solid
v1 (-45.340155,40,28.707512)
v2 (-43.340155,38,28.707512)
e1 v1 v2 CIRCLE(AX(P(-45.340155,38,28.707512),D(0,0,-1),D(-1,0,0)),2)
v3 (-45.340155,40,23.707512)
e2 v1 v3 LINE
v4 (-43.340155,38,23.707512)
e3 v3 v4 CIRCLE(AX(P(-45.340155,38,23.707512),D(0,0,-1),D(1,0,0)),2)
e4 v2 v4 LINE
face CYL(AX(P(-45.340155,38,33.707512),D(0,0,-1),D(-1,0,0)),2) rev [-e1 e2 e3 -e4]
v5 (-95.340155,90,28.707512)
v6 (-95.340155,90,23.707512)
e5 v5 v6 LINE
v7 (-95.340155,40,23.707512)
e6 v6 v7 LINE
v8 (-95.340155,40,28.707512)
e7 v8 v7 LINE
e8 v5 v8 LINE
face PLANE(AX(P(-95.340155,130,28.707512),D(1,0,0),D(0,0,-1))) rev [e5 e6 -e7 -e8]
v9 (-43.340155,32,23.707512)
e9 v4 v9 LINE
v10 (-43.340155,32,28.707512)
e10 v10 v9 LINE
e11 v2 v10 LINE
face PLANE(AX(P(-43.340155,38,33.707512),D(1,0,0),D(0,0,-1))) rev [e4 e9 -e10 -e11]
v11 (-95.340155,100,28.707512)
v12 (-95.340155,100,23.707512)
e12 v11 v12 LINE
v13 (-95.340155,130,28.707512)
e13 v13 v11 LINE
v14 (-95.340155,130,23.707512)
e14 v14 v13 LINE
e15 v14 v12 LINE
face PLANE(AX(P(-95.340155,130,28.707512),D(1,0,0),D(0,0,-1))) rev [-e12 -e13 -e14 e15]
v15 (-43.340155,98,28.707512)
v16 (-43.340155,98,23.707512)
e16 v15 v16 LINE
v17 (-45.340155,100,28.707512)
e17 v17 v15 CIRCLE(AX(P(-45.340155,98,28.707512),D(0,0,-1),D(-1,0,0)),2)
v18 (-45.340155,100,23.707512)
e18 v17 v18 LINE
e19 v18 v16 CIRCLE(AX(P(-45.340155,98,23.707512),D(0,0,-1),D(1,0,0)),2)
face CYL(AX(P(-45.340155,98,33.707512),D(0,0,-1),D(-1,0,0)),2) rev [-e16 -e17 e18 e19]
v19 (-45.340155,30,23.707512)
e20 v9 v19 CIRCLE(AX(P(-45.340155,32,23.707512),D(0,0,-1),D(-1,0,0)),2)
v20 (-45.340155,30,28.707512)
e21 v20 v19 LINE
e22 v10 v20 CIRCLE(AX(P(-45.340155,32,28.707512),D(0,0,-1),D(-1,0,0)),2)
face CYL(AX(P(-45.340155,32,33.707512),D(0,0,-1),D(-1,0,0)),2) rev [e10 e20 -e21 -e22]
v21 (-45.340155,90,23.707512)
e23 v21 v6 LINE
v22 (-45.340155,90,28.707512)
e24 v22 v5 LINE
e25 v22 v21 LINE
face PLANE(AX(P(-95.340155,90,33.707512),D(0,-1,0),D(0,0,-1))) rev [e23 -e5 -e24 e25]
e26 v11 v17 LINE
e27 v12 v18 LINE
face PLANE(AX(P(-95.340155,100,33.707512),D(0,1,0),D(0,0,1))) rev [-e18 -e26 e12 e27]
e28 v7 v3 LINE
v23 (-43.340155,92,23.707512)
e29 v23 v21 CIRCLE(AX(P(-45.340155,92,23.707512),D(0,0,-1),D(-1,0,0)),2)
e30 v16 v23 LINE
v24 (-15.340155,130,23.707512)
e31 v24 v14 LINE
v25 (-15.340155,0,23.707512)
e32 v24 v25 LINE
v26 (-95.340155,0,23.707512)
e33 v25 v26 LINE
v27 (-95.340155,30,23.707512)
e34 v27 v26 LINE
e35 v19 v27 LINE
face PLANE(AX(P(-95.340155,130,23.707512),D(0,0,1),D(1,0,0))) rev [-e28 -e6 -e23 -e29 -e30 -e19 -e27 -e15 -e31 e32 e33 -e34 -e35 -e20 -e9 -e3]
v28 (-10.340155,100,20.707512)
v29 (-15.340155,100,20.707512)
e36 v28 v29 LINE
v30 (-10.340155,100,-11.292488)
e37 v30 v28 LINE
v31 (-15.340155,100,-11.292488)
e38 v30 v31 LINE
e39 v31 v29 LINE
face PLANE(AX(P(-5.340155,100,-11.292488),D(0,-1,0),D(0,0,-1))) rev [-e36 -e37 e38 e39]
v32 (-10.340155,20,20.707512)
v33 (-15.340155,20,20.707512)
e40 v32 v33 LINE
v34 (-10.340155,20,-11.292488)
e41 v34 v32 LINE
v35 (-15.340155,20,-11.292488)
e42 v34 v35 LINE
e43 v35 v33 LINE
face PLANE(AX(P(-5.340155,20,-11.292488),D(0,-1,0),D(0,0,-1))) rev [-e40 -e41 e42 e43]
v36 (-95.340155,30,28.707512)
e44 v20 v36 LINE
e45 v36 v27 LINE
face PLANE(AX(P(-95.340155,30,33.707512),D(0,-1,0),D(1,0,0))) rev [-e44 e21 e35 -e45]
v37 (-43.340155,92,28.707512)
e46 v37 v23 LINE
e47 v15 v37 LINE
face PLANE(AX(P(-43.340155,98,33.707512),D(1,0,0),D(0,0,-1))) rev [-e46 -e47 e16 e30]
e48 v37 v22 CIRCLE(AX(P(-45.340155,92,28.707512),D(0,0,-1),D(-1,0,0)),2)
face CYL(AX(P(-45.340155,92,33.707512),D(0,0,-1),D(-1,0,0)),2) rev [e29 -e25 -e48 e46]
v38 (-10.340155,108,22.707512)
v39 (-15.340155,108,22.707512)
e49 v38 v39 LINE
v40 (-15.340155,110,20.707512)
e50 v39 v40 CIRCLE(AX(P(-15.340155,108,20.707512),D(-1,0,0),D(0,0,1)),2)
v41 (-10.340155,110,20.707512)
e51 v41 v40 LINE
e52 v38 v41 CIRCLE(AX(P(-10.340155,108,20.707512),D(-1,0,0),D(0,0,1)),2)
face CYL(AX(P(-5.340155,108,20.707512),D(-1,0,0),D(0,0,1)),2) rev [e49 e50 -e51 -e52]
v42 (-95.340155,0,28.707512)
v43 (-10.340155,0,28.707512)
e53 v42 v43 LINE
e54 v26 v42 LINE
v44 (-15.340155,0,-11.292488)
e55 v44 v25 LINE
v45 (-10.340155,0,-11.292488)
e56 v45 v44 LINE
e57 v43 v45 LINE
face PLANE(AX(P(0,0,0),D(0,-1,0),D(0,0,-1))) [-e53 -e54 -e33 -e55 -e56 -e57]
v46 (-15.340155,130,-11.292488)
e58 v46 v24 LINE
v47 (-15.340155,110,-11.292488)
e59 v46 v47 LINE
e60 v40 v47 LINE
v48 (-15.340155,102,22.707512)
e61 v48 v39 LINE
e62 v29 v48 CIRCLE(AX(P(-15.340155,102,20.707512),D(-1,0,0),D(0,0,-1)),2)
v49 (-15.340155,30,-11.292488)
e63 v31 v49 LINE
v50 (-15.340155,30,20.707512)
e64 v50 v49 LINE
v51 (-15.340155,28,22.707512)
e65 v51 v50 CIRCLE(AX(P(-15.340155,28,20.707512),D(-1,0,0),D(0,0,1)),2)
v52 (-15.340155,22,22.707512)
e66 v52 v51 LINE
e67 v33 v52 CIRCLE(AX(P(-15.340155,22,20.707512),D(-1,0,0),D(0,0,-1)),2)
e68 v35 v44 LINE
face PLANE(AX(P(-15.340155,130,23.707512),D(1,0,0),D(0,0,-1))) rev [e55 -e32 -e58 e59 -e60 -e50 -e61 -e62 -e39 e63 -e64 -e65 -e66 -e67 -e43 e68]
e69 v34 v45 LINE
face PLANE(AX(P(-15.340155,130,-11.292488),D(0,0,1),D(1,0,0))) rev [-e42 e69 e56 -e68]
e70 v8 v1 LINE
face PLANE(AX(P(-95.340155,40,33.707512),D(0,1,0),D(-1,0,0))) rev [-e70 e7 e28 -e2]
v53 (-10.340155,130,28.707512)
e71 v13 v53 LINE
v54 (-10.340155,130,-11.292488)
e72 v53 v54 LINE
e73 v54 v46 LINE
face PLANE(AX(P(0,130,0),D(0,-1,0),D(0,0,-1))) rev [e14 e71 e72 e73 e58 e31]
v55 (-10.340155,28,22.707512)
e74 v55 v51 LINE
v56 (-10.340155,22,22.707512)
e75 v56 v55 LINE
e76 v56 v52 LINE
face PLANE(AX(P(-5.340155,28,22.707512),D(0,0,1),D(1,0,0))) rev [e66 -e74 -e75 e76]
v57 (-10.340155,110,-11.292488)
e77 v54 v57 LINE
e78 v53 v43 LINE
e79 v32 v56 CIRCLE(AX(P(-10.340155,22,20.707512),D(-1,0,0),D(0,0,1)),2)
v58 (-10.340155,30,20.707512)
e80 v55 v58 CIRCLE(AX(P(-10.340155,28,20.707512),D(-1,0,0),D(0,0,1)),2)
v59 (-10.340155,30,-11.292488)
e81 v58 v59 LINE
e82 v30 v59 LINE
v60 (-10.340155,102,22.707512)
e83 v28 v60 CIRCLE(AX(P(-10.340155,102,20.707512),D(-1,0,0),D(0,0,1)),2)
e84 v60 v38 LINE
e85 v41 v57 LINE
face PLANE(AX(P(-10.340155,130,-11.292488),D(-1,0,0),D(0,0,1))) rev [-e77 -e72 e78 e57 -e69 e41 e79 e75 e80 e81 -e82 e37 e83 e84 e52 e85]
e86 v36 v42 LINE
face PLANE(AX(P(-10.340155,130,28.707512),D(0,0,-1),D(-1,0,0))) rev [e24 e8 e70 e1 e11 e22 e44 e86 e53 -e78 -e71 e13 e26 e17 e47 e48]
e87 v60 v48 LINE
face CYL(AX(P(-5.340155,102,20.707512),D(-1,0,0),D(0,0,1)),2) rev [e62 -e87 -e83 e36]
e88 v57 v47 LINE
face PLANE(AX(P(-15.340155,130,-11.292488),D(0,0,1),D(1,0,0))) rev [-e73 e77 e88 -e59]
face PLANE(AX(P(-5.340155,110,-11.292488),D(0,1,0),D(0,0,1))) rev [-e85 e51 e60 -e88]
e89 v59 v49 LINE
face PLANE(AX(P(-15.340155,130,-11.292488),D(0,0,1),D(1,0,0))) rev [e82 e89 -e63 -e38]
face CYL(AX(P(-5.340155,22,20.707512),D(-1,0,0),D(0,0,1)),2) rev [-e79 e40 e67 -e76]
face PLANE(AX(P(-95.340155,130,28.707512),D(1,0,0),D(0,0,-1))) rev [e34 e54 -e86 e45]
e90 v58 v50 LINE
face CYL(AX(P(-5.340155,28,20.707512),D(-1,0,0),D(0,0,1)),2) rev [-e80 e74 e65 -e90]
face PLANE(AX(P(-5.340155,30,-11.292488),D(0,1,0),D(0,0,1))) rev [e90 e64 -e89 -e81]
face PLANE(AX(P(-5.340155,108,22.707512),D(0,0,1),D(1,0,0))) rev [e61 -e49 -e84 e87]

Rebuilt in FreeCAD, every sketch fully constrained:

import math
import FreeCAD as App
import Part
import Sketcher
from FreeCAD import Vector
Q = App.Units.Quantity

doc = App.newDocument("Part")
body = doc.addObject("PartDesign::Body", "Body")

# Sketch on XZ plane
sketch1 = body.newObject("Sketcher::SketchObject", "Sketch")
sketch1.AttachmentSupport = (doc.getObject("XZ_Plane"), [""])
sketch1.MapMode = "FlatFace"
sketch1.addGeometry([
    Part.LineSegment(Vector(-15.340155, 23.707512, 0), Vector(-95.340155, 23.707512, 0)),  # 0
    Part.LineSegment(Vector(-95.340155, 23.707512, 0), Vector(-95.340155, 28.707512, 0)),  # 1
    Part.LineSegment(Vector(-95.340155, 28.707512, 0), Vector(-10.340155, 28.707512, 0)),  # 2
    Part.LineSegment(Vector(-10.340155, 28.707512, 0), Vector(-10.340155, -11.292488, 0)),  # 3
    Part.LineSegment(Vector(-10.340155, -11.292488, 0), Vector(-15.340155, -11.292488, 0)),  # 4
    Part.LineSegment(Vector(-15.340155, -11.292488, 0), Vector(-15.340155, 23.707512, 0)),  # 5
], False)
sketch1.addConstraint([
    Sketcher.Constraint("Coincident", 0, 2, 1, 1),
    Sketcher.Constraint("Coincident", 1, 2, 2, 1),
    Sketcher.Constraint("Coincident", 2, 2, 3, 1),
    Sketcher.Constraint("Coincident", 3, 2, 4, 1),
    Sketcher.Constraint("Coincident", 4, 2, 5, 1),
    Sketcher.Constraint("Coincident", 5, 2, 0, 1),
    Sketcher.Constraint("Horizontal", 0),
    Sketcher.Constraint("Vertical", 1),
    Sketcher.Constraint("Horizontal", 2),
    Sketcher.Constraint("Vertical", 3),
    Sketcher.Constraint("Horizontal", 4),
    Sketcher.Constraint("Vertical", 5),
    Sketcher.Constraint("Equal", 4, 1),
    Sketcher.Constraint("DistanceX", 0, 2, 0, 1, Q("80 mm")),
    Sketcher.Constraint("DistanceX", 2, 1, 2, 2, Q("85 mm")),
    Sketcher.Constraint("DistanceY", 3, 2, 3, 1, Q("40 mm")),
    Sketcher.Constraint("DistanceX", 0, 2, -1, 1, Q("95.340155 mm")),
    Sketcher.Constraint("DistanceY", -1, 1, 0, 2, Q("23.707512 mm")),
])
pad1 = body.newObject("PartDesign::Pad", "Pad")
pad1.Profile = sketch1
pad1.Length = 130
pad1.Reversed = True

# Sketch on YZ plane
sketch2 = body.newObject("Sketcher::SketchObject", "Sketch001")
sketch2.AttachmentSupport = (doc.getObject("YZ_Plane"), [""])
sketch2.MapMode = "FlatFace"
sketch2.AttachmentOffset = App.Placement(Vector(0, 0, -15.340155), App.Rotation())
sketch2.addGeometry([
    Part.LineSegment(Vector(110, 20.707512, 0), Vector(110, -11.292488, 0)),  # 0
    Part.LineSegment(Vector(110, -11.292488, 0), Vector(100, -11.292488, 0)),  # 1
    Part.LineSegment(Vector(100, -11.292488, 0), Vector(100, 20.707512, 0)),  # 2
    Part.ArcOfCircle(Part.Circle(Vector(102, 20.707512, 0), Vector(0, 0, 1), 2), math.radians(90), math.radians(180)),  # 3
    Part.LineSegment(Vector(102, 22.707512, 0), Vector(108, 22.707512, 0)),  # 4
    Part.ArcOfCircle(Part.Circle(Vector(108, 20.707512, 0), Vector(0, 0, 1), 2), math.radians(0), math.radians(90)),  # 5
    Part.LineSegment(Vector(30, 20.707512, 0), Vector(30, -11.292488, 0)),  # 6
    Part.LineSegment(Vector(30, -11.292488, 0), Vector(20, -11.292488, 0)),  # 7
    Part.LineSegment(Vector(20, -11.292488, 0), Vector(20, 20.707512, 0)),  # 8
    Part.ArcOfCircle(Part.Circle(Vector(22, 20.707512, 0), Vector(0, 0, 1), 2), math.radians(90), math.radians(180)),  # 9
    Part.LineSegment(Vector(22, 22.707512, 0), Vector(28, 22.707512, 0)),  # 10
    Part.ArcOfCircle(Part.Circle(Vector(28, 20.707512, 0), Vector(0, 0, 1), 2), math.radians(0), math.radians(90)),  # 11
], False)
sketch2.addConstraint([
    Sketcher.Constraint("Coincident", 0, 2, 1, 1),
    Sketcher.Constraint("Coincident", 1, 2, 2, 1),
    Sketcher.Constraint("Tangent", 2, 2, 3, 2),
    Sketcher.Constraint("Tangent", 3, 1, 4, 1),
    Sketcher.Constraint("Tangent", 4, 2, 5, 2),
    Sketcher.Constraint("Tangent", 5, 1, 0, 1),
    Sketcher.Constraint("Coincident", 6, 2, 7, 1),
    Sketcher.Constraint("Coincident", 7, 2, 8, 1),
    Sketcher.Constraint("Tangent", 8, 2, 9, 2),
    Sketcher.Constraint("Tangent", 9, 1, 10, 1),
    Sketcher.Constraint("Tangent", 10, 2, 11, 2),
    Sketcher.Constraint("Tangent", 11, 1, 6, 1),
    Sketcher.Constraint("Vertical", 0),
    Sketcher.Constraint("Horizontal", 1),
    Sketcher.Constraint("Vertical", 2),
    Sketcher.Constraint("Horizontal", 4),
    Sketcher.Constraint("Vertical", 6),
    Sketcher.Constraint("Horizontal", 7),
    Sketcher.Constraint("Vertical", 8),
    Sketcher.Constraint("Horizontal", 10),
    Sketcher.Constraint("Equal", 3, 5),
    Sketcher.Constraint("Equal", 5, 9),
    Sketcher.Constraint("Equal", 9, 11),
    Sketcher.Constraint("Horizontal", 5, 3, 9, 3),
    Sketcher.Constraint("Horizontal", 1, 2, 6, 2),
    Sketcher.Constraint("Equal", 1, 7),
    Sketcher.Constraint("Radius", 3, Q("2 mm")),
    Sketcher.Constraint("DistanceX", 1, 2, 1, 1, Q("10 mm")),
    Sketcher.Constraint("DistanceY", 0, 2, 0, 1, Q("32 mm")),
    Sketcher.Constraint("DistanceX", -1, 1, 3, 3, Q("102 mm")),
    Sketcher.Constraint("DistanceX", -1, 1, 9, 3, Q("22 mm")),
    Sketcher.Constraint("DistanceY", -1, 1, 3, 3, Q("20.707512 mm")),
])
pocket1 = body.newObject("PartDesign::Pocket", "Pocket")
pocket1.Profile = sketch2
pocket1.Length = 10
pocket1.Reversed = True

# Sketch on XY plane
sketch3 = body.newObject("Sketcher::SketchObject", "Sketch002")
sketch3.AttachmentSupport = (doc.getObject("XY_Plane"), [""])
sketch3.MapMode = "FlatFace"
sketch3.AttachmentOffset = App.Placement(Vector(0, 0, 23.707512), App.Rotation())
sketch3.addGeometry([
    Part.LineSegment(Vector(-95.340155, 100, 0), Vector(-45.340155, 100, 0)),  # 0
    Part.ArcOfCircle(Part.Circle(Vector(-45.340155, 98, 0), Vector(0, 0, 1), 2), math.radians(0), math.radians(90)),  # 1
    Part.LineSegment(Vector(-43.340155, 98, 0), Vector(-43.340155, 92, 0)),  # 2
    Part.ArcOfCircle(Part.Circle(Vector(-45.340155, 92, 0), Vector(0, 0, 1), 2), math.radians(-90), math.radians(0)),  # 3
    Part.LineSegment(Vector(-45.340155, 90, 0), Vector(-95.340155, 90, 0)),  # 4
    Part.LineSegment(Vector(-95.340155, 90, 0), Vector(-95.340155, 100, 0)),  # 5
    Part.LineSegment(Vector(-95.340155, 40, 0), Vector(-45.340155, 40, 0)),  # 6
    Part.ArcOfCircle(Part.Circle(Vector(-45.340155, 38, 0), Vector(0, 0, 1), 2), math.radians(0), math.radians(90)),  # 7
    Part.LineSegment(Vector(-43.340155, 38, 0), Vector(-43.340155, 32, 0)),  # 8
    Part.ArcOfCircle(Part.Circle(Vector(-45.340155, 32, 0), Vector(0, 0, 1), 2), math.radians(-90), math.radians(0)),  # 9
    Part.LineSegment(Vector(-45.340155, 30, 0), Vector(-95.340155, 30, 0)),  # 10
    Part.LineSegment(Vector(-95.340155, 30, 0), Vector(-95.340155, 40, 0)),  # 11
], False)
sketch3.addConstraint([
    Sketcher.Constraint("Tangent", 0, 2, 1, 2),
    Sketcher.Constraint("Tangent", 1, 1, 2, 1),
    Sketcher.Constraint("Tangent", 2, 2, 3, 2),
    Sketcher.Constraint("Tangent", 3, 1, 4, 1),
    Sketcher.Constraint("Coincident", 4, 2, 5, 1),
    Sketcher.Constraint("Coincident", 5, 2, 0, 1),
    Sketcher.Constraint("Tangent", 6, 2, 7, 2),
    Sketcher.Constraint("Tangent", 7, 1, 8, 1),
    Sketcher.Constraint("Tangent", 8, 2, 9, 2),
    Sketcher.Constraint("Tangent", 9, 1, 10, 1),
    Sketcher.Constraint("Coincident", 10, 2, 11, 1),
    Sketcher.Constraint("Coincident", 11, 2, 6, 1),
    Sketcher.Constraint("Horizontal", 0),
    Sketcher.Constraint("Vertical", 2),
    Sketcher.Constraint("Horizontal", 4),
    Sketcher.Constraint("Vertical", 5),
    Sketcher.Constraint("Horizontal", 6),
    Sketcher.Constraint("Vertical", 8),
    Sketcher.Constraint("Horizontal", 10),
    Sketcher.Constraint("Vertical", 11),
    Sketcher.Constraint("Equal", 1, 3),
    Sketcher.Constraint("Equal", 3, 7),
    Sketcher.Constraint("Equal", 7, 9),
    Sketcher.Constraint("Vertical", 3, 3, 7, 3),
    Sketcher.Constraint("Vertical", 5, 2, 10, 2),
    Sketcher.Constraint("Equal", 2, 8),
    Sketcher.Constraint("Radius", 1, Q("2 mm")),
    Sketcher.Constraint("DistanceX", 0, 1, 0, 2, Q("50 mm")),
    Sketcher.Constraint("DistanceY", 2, 2, 2, 1, Q("6 mm")),
    Sketcher.Constraint("DistanceY", -1, 1, 1, 3, Q("98 mm")),
    Sketcher.Constraint("DistanceY", -1, 1, 7, 3, Q("38 mm")),
    Sketcher.Constraint("DistanceX", 1, 3, -1, 1, Q("45.340155 mm")),
])
pocket2 = body.newObject("PartDesign::Pocket", "Pocket001")
pocket2.Profile = sketch3
pocket2.Length = 10
pocket2.Reversed = True

doc.recompute()
